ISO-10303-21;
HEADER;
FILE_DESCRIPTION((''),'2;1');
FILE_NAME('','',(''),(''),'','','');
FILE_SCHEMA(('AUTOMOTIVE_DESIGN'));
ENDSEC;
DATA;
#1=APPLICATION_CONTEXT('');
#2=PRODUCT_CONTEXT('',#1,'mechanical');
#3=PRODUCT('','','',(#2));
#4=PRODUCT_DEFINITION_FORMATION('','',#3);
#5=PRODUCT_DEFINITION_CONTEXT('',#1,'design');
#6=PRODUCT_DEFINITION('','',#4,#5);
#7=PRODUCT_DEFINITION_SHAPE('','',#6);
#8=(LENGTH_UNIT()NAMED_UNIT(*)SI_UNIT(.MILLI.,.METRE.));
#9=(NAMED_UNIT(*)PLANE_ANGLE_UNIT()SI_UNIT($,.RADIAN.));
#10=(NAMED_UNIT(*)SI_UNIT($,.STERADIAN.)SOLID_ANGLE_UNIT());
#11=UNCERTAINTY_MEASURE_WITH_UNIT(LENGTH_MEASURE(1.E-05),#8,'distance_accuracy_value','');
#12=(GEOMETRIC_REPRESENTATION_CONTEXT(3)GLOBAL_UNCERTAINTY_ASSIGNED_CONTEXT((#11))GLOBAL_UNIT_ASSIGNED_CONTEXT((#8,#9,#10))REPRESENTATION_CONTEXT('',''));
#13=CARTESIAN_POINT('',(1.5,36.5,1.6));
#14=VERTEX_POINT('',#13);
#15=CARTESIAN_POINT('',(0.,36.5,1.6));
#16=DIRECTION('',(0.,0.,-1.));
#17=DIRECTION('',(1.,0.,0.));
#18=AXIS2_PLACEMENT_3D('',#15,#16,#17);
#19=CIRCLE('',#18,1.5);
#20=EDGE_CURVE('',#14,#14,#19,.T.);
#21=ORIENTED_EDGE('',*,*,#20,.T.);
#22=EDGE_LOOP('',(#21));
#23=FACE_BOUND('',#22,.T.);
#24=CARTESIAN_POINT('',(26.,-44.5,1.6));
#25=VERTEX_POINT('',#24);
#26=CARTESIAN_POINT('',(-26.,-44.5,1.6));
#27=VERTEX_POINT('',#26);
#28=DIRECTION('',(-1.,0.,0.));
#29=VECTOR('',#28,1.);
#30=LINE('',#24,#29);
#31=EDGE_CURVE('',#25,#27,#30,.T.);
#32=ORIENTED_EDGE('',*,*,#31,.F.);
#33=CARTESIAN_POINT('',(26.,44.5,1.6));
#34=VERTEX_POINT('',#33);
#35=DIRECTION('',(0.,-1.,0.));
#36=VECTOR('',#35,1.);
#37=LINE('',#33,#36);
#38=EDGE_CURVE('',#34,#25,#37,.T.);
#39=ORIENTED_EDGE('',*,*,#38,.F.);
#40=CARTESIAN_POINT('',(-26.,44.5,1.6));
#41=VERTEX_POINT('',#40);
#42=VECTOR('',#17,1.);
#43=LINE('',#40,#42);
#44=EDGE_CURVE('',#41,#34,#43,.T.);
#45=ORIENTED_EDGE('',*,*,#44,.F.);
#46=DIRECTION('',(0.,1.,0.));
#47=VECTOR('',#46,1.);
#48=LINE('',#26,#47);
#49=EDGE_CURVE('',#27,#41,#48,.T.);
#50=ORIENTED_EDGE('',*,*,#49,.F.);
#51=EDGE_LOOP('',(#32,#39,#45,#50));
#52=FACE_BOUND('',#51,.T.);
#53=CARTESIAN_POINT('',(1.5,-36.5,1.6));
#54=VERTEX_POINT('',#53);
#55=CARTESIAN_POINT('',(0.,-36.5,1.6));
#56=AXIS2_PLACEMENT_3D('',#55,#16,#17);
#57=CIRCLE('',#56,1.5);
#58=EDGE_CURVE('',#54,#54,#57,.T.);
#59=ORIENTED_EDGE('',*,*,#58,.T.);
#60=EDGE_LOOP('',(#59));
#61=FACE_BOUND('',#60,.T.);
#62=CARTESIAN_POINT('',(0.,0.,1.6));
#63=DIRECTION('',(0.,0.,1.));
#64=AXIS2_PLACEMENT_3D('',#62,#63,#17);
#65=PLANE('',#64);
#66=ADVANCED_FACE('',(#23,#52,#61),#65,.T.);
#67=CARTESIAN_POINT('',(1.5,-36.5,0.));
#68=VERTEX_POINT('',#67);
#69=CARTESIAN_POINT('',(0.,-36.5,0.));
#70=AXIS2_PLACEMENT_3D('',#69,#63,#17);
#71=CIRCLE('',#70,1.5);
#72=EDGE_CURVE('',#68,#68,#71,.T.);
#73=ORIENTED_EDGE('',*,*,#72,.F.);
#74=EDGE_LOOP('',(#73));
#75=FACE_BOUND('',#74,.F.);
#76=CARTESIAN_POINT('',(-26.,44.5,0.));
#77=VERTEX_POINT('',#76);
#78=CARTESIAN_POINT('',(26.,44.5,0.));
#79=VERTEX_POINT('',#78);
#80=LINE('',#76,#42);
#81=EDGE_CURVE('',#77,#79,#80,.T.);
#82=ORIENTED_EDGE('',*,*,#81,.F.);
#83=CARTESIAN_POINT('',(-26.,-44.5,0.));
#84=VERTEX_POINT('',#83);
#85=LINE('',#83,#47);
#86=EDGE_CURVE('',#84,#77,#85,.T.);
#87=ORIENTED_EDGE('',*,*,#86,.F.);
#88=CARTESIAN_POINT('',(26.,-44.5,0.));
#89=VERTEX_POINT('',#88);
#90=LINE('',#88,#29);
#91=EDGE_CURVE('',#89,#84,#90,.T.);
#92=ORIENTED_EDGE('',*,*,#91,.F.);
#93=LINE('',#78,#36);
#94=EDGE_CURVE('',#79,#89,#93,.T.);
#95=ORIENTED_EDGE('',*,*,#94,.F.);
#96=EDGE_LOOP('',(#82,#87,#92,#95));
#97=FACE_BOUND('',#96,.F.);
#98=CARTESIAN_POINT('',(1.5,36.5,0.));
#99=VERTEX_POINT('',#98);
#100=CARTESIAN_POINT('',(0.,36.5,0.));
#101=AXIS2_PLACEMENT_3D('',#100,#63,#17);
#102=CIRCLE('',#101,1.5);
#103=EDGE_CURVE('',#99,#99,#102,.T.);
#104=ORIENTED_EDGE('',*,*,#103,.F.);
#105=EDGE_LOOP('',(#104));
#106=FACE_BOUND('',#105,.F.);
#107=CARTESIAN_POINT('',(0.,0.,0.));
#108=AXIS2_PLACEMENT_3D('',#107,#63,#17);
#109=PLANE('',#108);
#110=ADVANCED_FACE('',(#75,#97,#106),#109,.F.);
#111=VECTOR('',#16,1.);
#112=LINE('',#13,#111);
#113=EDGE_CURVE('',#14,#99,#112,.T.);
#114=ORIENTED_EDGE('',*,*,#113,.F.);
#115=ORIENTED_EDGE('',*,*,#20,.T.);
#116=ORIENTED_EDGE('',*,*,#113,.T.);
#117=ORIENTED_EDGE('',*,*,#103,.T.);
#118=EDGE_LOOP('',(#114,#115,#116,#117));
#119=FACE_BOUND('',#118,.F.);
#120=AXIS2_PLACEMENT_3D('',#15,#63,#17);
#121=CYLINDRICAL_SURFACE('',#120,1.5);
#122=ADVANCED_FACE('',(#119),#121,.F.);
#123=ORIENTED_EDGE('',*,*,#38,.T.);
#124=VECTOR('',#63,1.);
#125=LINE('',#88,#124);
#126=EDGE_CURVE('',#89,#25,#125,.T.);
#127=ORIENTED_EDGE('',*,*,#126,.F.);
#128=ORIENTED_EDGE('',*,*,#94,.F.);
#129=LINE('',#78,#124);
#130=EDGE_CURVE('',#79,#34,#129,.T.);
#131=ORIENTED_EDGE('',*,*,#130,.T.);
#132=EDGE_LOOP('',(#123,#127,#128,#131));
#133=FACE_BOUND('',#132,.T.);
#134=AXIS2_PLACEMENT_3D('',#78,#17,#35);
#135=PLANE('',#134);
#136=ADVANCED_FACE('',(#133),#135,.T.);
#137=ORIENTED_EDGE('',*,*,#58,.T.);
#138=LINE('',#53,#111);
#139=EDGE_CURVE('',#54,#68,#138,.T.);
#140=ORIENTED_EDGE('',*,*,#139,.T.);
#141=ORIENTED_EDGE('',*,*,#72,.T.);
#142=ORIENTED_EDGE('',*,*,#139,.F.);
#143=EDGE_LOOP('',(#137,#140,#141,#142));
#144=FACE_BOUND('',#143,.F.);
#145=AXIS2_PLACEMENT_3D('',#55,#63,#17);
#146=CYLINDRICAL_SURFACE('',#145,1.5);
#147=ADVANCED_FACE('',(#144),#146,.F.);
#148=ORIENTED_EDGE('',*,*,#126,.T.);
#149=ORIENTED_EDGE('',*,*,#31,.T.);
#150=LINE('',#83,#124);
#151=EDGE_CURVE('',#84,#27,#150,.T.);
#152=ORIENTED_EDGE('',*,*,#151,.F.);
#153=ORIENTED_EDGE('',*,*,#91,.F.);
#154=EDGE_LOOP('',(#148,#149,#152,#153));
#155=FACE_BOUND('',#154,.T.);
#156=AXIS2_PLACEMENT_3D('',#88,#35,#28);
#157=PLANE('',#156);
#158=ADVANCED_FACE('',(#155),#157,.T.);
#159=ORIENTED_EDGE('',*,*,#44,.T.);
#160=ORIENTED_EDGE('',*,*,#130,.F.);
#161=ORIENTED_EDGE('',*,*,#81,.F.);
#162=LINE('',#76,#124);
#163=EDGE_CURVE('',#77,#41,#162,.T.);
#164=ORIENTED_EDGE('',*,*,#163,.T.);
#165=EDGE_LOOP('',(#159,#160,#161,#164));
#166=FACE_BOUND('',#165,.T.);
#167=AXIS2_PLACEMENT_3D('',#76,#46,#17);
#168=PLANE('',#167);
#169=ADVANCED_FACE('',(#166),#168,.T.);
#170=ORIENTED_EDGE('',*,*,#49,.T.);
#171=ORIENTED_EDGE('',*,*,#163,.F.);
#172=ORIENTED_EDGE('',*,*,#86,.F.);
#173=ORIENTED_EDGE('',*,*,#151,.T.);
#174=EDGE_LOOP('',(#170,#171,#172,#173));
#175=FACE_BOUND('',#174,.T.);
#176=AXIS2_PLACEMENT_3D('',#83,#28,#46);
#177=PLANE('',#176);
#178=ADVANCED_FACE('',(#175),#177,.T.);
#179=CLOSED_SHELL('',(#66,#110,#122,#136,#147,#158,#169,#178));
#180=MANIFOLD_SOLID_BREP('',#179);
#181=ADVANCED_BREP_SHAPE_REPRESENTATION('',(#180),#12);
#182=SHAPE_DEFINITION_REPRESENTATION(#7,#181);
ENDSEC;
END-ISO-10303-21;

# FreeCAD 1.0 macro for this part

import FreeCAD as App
import Part
import Sketcher

doc = App.newDocument("Part")
body = doc.addObject("PartDesign::Body", "Body")

# Sketch on XY plane
sketch1 = body.newObject("Sketcher::SketchObject", "Sketch")
sketch1.AttachmentSupport = (doc.getObject("XY_Plane"), [""])
sketch1.MapMode = "FlatFace"
sketch1.addGeometry([
    Part.LineSegment(App.Vector(26, 44.5, 0), App.Vector(-26, 44.5, 0)),
    Part.LineSegment(App.Vector(-26, 44.5, 0), App.Vector(-26, -44.5, 0)),
    Part.LineSegment(App.Vector(-26, -44.5, 0), App.Vector(26, -44.5, 0)),
    Part.LineSegment(App.Vector(26, -44.5, 0), App.Vector(26, 44.5, 0)),
], False)
sketch1.addConstraint([
    Sketcher.Constraint("Coincident", 0, 2, 1, 1),
    Sketcher.Constraint("Coincident", 1, 2, 2, 1),
    Sketcher.Constraint("Coincident", 2, 2, 3, 1),
    Sketcher.Constraint("Coincident", 3, 2, 0, 1),
    Sketcher.Constraint("Horizontal", 0),
    Sketcher.Constraint("Vertical", 1),
    Sketcher.Constraint("Horizontal", 2),
    Sketcher.Constraint("Vertical", 3),
    Sketcher.Constraint("Symmetric", 0, 2, 2, 2, -1, 1),
    Sketcher.Constraint("DistanceX", 0, 2, 0, 1, 52.0),
    Sketcher.Constraint("DistanceY", 1, 2, 1, 1, 89.0),
])
pad1 = body.newObject("PartDesign::Pad", "Pad")
pad1.Profile = sketch1
pad1.Length = 1.6

# Sketch on XY plane
sketch2 = body.newObject("Sketcher::SketchObject", "Sketch001")
sketch2.AttachmentSupport = (doc.getObject("XY_Plane"), [""])
sketch2.MapMode = "FlatFace"
sketch2.AttachmentOffset = App.Placement(App.Vector(0, 0, 1.6), App.Rotation())
sketch2.addGeometry([
    Part.Circle(App.Vector(0, 36.5, 0), App.Vector(0, 0, 1), 1.5),
    Part.Circle(App.Vector(0, -36.5, 0), App.Vector(0, 0, 1), 1.5),
], False)
sketch2.addConstraint([
    Sketcher.Constraint("Equal", 0, 1),
    Sketcher.Constraint("Symmetric", 0, 3, 1, 3, -1, 1),
    Sketcher.Constraint("PointOnObject", 0, 3, -2),
    Sketcher.Constraint("Diameter", 0, 3.0),
    Sketcher.Constraint("DistanceY", 1, 3, 0, 3, 73.0),
])
pocket1 = body.newObject("PartDesign::Pocket", "Pocket")
pocket1.Profile = sketch2
pocket1.Length = 1.6

doc.recompute()
